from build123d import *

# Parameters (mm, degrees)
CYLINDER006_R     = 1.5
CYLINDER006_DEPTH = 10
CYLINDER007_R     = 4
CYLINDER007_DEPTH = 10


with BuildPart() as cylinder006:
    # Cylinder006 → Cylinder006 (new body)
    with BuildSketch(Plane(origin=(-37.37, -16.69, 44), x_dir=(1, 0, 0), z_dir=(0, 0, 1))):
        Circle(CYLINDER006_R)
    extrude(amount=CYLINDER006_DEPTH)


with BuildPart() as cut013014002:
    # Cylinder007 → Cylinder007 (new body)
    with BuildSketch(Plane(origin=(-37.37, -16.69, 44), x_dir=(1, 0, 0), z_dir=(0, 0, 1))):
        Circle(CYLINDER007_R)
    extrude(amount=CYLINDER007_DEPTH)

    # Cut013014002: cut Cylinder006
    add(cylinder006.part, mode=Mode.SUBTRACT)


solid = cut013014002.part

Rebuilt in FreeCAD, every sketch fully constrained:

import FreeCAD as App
import Part
import Sketcher

V = App.Vector
Q = App.Units.Quantity

doc = App.newDocument("Part")
body = doc.addObject("PartDesign::Body", "Body")

sketch1 = body.newObject("Sketcher::SketchObject", "Sketch")
sketch1.AttachmentSupport = (doc.getObject("XY_Plane"), [""])
sketch1.MapMode = "FlatFace"
sketch1.AttachmentOffset = App.Placement(V(0, 0, 44), App.Rotation())
sketch1.addGeometry(Part.Circle(V(-37.37, -16.69, 0), V(0, 0, 1), 1.5), False)
sketch1.addConstraint([
    Sketcher.Constraint("Diameter", 0, Q("3 mm")),
    Sketcher.Constraint("DistanceX", 0, 3, -1, 1, Q("37.37 mm")),
    Sketcher.Constraint("DistanceY", 0, 3, -1, 1, Q("16.69 mm")),
])
pad1 = body.newObject("PartDesign::Pad", "Pad")
pad1.Profile = sketch1
pad1.Length = 10
body2 = doc.addObject("PartDesign::Body", "Body001")

sketch2 = body2.newObject("Sketcher::SketchObject", "Sketch001")
sketch2.AttachmentSupport = (doc.getObject("XY_Plane001"), [""])
sketch2.MapMode = "FlatFace"
sketch2.AttachmentOffset = App.Placement(V(0, 0, 44), App.Rotation())
sketch2.addGeometry(Part.Circle(V(-37.37, -16.69, 0), V(0, 0, 1), 4), False)
sketch2.addConstraint([
    Sketcher.Constraint("Diameter", 0, Q("8 mm")),
    Sketcher.Constraint("DistanceX", 0, 3, -1, 1, Q("37.37 mm")),
    Sketcher.Constraint("DistanceY", 0, 3, -1, 1, Q("16.69 mm")),
])
pad2 = body2.newObject("PartDesign::Pad", "Pad001")
pad2.Profile = sketch2
pad2.Length = 10
doc.recompute()

boolean = body2.newObject("PartDesign::Boolean", "Boolean")
boolean.Type = "Cut"
boolean.addObjects([body])

doc.recompute()
